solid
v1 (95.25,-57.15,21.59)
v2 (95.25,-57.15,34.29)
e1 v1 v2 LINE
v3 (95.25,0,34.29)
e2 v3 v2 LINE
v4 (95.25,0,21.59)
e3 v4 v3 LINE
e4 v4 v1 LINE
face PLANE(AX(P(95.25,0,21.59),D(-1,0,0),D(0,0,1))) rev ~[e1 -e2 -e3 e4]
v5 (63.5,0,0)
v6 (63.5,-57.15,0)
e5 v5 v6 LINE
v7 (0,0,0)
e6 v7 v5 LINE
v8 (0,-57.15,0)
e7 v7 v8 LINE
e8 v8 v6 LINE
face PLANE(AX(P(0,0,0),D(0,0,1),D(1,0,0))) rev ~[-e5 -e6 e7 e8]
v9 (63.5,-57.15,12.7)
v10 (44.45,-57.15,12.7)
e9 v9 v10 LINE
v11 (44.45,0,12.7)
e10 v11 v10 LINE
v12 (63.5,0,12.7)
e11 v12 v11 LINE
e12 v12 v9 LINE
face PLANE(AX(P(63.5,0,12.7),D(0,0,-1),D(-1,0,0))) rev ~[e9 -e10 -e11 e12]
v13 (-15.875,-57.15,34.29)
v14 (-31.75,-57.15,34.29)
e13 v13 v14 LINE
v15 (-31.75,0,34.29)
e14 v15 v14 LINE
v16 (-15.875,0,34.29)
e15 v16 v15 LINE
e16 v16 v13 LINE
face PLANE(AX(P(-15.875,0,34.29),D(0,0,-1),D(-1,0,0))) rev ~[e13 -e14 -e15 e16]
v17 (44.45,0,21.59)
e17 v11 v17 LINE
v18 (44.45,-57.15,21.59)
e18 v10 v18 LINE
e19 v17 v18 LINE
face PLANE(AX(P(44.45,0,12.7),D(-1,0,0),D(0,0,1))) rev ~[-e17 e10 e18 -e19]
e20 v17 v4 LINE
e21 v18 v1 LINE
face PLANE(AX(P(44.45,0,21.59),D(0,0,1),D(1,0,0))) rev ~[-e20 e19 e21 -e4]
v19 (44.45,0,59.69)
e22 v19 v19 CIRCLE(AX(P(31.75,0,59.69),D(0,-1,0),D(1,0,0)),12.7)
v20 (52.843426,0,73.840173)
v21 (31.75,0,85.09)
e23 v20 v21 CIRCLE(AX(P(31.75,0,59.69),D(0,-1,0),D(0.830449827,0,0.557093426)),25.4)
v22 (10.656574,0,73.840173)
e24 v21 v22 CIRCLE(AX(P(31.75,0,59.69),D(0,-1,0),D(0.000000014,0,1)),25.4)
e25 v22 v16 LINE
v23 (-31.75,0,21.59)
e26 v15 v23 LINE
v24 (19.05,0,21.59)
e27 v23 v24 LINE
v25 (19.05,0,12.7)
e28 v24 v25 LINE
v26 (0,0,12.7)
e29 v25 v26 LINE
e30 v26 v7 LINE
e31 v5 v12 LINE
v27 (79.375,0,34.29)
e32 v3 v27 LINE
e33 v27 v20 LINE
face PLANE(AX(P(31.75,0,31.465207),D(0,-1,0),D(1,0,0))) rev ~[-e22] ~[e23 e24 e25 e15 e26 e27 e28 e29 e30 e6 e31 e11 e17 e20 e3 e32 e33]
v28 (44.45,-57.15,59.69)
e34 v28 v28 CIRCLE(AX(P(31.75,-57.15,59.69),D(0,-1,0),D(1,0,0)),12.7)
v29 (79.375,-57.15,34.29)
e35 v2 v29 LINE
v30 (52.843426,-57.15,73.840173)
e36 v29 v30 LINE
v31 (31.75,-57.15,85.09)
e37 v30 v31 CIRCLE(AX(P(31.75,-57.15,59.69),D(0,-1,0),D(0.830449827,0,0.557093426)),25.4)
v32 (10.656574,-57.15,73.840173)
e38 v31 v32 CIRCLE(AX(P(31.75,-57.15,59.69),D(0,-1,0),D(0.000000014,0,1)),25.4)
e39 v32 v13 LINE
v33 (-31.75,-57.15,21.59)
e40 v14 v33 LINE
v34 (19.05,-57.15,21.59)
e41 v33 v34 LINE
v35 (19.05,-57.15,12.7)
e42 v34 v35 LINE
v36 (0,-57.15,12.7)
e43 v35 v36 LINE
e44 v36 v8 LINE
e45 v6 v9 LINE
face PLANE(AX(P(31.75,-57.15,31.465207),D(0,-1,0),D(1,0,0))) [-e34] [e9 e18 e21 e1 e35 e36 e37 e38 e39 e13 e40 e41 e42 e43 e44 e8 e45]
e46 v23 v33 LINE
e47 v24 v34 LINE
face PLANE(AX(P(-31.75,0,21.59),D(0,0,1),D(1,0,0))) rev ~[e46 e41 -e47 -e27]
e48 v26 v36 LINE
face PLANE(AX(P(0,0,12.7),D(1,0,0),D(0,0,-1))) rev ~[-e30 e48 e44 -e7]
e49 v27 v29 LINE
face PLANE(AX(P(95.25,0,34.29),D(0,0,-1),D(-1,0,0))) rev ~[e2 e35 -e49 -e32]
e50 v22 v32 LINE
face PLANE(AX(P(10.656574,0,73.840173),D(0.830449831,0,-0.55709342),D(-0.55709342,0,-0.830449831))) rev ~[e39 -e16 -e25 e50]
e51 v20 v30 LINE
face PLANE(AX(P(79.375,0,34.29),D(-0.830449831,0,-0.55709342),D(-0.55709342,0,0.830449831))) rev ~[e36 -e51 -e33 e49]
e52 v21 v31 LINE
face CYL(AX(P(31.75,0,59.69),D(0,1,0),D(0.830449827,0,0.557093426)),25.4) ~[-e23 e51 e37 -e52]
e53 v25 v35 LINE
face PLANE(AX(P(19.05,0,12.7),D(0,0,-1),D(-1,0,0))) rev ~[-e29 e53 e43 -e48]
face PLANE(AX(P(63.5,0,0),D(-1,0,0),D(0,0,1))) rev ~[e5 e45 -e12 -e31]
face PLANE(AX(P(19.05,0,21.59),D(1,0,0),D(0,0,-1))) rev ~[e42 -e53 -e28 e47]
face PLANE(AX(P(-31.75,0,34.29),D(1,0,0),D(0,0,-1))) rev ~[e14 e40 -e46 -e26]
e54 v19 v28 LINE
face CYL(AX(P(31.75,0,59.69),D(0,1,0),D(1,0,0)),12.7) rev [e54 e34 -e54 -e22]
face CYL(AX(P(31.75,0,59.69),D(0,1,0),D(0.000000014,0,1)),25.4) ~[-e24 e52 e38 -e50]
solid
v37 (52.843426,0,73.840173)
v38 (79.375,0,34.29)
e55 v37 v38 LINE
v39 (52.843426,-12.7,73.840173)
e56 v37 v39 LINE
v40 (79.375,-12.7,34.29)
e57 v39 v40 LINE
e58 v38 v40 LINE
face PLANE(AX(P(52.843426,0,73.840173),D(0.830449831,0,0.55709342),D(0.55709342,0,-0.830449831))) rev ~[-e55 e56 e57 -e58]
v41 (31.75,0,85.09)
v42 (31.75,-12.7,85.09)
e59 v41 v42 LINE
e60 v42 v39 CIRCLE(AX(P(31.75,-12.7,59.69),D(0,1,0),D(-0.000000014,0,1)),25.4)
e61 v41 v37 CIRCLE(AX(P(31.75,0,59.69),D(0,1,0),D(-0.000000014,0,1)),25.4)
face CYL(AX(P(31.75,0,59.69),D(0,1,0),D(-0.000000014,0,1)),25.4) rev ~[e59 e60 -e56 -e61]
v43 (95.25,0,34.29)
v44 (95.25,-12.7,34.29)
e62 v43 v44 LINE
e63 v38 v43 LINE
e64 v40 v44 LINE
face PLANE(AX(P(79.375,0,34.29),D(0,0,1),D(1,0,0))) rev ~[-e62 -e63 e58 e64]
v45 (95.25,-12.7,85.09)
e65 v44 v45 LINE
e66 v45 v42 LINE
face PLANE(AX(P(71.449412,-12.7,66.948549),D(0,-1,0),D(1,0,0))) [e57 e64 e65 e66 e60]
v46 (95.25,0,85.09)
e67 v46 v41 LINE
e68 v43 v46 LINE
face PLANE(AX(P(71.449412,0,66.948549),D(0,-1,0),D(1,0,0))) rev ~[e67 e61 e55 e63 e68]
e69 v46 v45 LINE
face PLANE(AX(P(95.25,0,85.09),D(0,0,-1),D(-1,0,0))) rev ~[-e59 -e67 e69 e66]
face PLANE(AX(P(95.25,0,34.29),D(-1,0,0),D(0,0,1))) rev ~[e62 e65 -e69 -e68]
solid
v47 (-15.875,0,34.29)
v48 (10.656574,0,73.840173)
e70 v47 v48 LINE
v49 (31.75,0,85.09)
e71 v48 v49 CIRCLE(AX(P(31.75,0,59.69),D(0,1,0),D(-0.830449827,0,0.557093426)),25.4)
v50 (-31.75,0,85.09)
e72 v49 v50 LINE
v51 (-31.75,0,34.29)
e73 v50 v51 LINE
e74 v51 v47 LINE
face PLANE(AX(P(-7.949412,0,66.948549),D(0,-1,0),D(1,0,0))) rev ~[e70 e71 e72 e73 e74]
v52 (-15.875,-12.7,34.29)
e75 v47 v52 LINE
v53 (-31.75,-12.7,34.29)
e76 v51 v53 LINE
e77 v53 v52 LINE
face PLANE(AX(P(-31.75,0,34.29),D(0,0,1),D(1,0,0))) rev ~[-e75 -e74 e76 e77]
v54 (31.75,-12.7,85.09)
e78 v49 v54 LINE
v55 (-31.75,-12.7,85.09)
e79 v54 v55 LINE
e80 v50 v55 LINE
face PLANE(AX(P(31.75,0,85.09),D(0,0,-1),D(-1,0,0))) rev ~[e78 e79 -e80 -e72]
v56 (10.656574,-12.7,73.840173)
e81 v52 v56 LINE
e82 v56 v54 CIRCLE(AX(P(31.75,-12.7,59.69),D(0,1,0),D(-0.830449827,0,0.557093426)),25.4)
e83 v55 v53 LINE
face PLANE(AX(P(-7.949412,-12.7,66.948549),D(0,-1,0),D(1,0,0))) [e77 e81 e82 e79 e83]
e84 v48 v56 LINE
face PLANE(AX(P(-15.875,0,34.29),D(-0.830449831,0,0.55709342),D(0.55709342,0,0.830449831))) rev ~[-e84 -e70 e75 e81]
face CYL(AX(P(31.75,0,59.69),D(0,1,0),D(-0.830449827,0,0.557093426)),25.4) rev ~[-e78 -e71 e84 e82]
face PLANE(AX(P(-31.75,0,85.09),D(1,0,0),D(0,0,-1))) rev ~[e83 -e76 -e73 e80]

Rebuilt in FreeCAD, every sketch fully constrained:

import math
import FreeCAD as App
import Part
import Sketcher
from FreeCAD import Vector
Q = App.Units.Quantity

doc = App.newDocument("Part")
body = doc.addObject("PartDesign::Body", "Body")
body.AllowCompound = True

# Sketch on XZ plane
sketch1 = doc.addObject("Sketcher::SketchObject", "Sketch")
body.addObject(sketch1)
sketch1.AttachmentSupport = (doc.XZ_Plane, [""])
sketch1.MapMode = "FlatFace"
sketch1.addGeometry([
    Part.LineSegment(Vector(-32, 85, 0), Vector(-32, 34, 0)),  # 0
    Part.LineSegment(Vector(-32, 34, 0), Vector(-16, 34, 0)),  # 1
    Part.LineSegment(Vector(-16, 34, 0), Vector(11, 74, 0)),  # 2
    Part.ArcOfCircle(Part.Circle(Vector(32, 60, 0), Vector(0, 0, 1), 25), math.radians(90), math.radians(146)),  # 3
    Part.LineSegment(Vector(32, 85, 0), Vector(-32, 85, 0)),  # 4
    Part.LineSegment(Vector(79, 34, 0), Vector(95, 34, 0)),  # 5
    Part.LineSegment(Vector(95, 34, 0), Vector(95, 85, 0)),  # 6
    Part.LineSegment(Vector(95, 85, 0), Vector(32, 85, 0)),  # 7
    Part.ArcOfCircle(Part.Circle(Vector(32, 60, 0), Vector(0, 0, 1), 25), math.radians(34), math.radians(90)),  # 8
    Part.LineSegment(Vector(53, 74, 0), Vector(79, 34, 0)),  # 9
], False)
sketch1.addConstraint([
    Sketcher.Constraint("Coincident", 0, 2, 1, 1),
    Sketcher.Constraint("Coincident", 1, 2, 2, 1),
    Sketcher.Constraint("Tangent", 2, 2, 3, 2),
    Sketcher.Constraint("Tangent", 3, 1, 4, 1),
    Sketcher.Constraint("Coincident", 4, 2, 0, 1),
    Sketcher.Constraint("Coincident", 5, 2, 6, 1),
    Sketcher.Constraint("Coincident", 6, 2, 7, 1),
    Sketcher.Constraint("Tangent", 7, 2, 8, 2),
    Sketcher.Constraint("Tangent", 8, 1, 9, 1),
    Sketcher.Constraint("Coincident", 9, 2, 5, 1),
    Sketcher.Constraint("Vertical", 0),
    Sketcher.Constraint("Horizontal", 1),
    Sketcher.Constraint("Horizontal", 4),
    Sketcher.Constraint("Horizontal", 5),
    Sketcher.Constraint("Vertical", 6),
    Sketcher.Constraint("Horizontal", 7),
    Sketcher.Constraint("Coincident", 8, 3, 3, 3),
    Sketcher.Constraint("Equal", 3, 8),
    Sketcher.Constraint("Horizontal", 1, 2, 5, 2),
    Sketcher.Constraint("Horizontal", 2, 2, 8, 1),
    Sketcher.Constraint("Equal", 1, 5),
    Sketcher.Constraint("Radius", 3, Q("1 in")),
    Sketcher.Constraint("DistanceY", 0, 2, 0, 1, Q("2 in")),
    Sketcher.Constraint("DistanceX", 4, 2, 4, 1, Q("2.5 in")),
    Sketcher.Constraint("DistanceX", 1, 1, 1, 2, Q("0.625 in")),
    Sketcher.Constraint("DistanceX", -1, 1, 3, 3, Q("1.25 in")),
    Sketcher.Constraint("DistanceY", -1, 1, 3, 3, Q("2.35 in")),
])
pad1 = doc.addObject("PartDesign::Pad", "Pad")
body.addObject(pad1)
pad1.Profile = sketch1
pad1.Length = Q("0.5 in")
body2 = doc.addObject("PartDesign::Body", "Body001")

# Sketch on XZ plane
sketch2 = doc.addObject("Sketcher::SketchObject", "Sketch001")
body2.addObject(sketch2)
sketch2.AttachmentSupport = (doc.getObject("XZ_Plane001"), [""])
sketch2.MapMode = "FlatFace"
sketch2.addGeometry([
    Part.LineSegment(Vector(0, 13, 0), Vector(0, 0, 0)),  # 0
    Part.LineSegment(Vector(0, 0, 0), Vector(64, 0, 0)),  # 1
    Part.LineSegment(Vector(64, 0, 0), Vector(64, 13, 0)),  # 2
    Part.LineSegment(Vector(64, 13, 0), Vector(44, 13, 0)),  # 3
    Part.LineSegment(Vector(44, 13, 0), Vector(44, 22, 0)),  # 4
    Part.LineSegment(Vector(44, 22, 0), Vector(95, 22, 0)),  # 5
    Part.LineSegment(Vector(95, 22, 0), Vector(95, 34, 0)),  # 6
    Part.LineSegment(Vector(95, 34, 0), Vector(79, 34, 0)),  # 7
    Part.LineSegment(Vector(79, 34, 0), Vector(53, 74, 0)),  # 8
    Part.ArcOfCircle(Part.Circle(Vector(32, 60, 0), Vector(0, 0, 1), 25), math.radians(34), math.radians(90)),  # 9
    Part.ArcOfCircle(Part.Circle(Vector(32, 60, 0), Vector(0, 0, 1), 25), math.radians(90), math.radians(146)),  # 10
    Part.LineSegment(Vector(11, 74, 0), Vector(-16, 34, 0)),  # 11
    Part.LineSegment(Vector(-16, 34, 0), Vector(-32, 34, 0)),  # 12
    Part.LineSegment(Vector(-32, 34, 0), Vector(-32, 22, 0)),  # 13
    Part.LineSegment(Vector(-32, 22, 0), Vector(19, 22, 0)),  # 14
    Part.LineSegment(Vector(19, 22, 0), Vector(19, 13, 0)),  # 15
    Part.LineSegment(Vector(19, 13, 0), Vector(0, 13, 0)),  # 16
    Part.Circle(Vector(32, 60, 0), Vector(0, 0, 1), 13),  # 17
], False)
sketch2.addConstraint([
    Sketcher.Constraint("Coincident", 0, 2, 1, 1),
    Sketcher.Constraint("Coincident", 1, 2, 2, 1),
    Sketcher.Constraint("Coincident", 2, 2, 3, 1),
    Sketcher.Constraint("Coincident", 3, 2, 4, 1),
    Sketcher.Constraint("Coincident", 4, 2, 5, 1),
    Sketcher.Constraint("Coincident", 5, 2, 6, 1),
    Sketcher.Constraint("Coincident", 6, 2, 7, 1),
    Sketcher.Constraint("Coincident", 7, 2, 8, 1),
    Sketcher.Constraint("Tangent", 8, 2, 9, 1),
    Sketcher.Constraint("Tangent", 9, 2, 10, 1),
    Sketcher.Constraint("Tangent", 10, 2, 11, 1),
    Sketcher.Constraint("Coincident", 11, 2, 12, 1),
    Sketcher.Constraint("Coincident", 12, 2, 13, 1),
    Sketcher.Constraint("Coincident", 13, 2, 14, 1),
    Sketcher.Constraint("Coincident", 14, 2, 15, 1),
    Sketcher.Constraint("Coincident", 15, 2, 16, 1),
    Sketcher.Constraint("Coincident", 16, 2, 0, 1),
    Sketcher.Constraint("Vertical", 0),
    Sketcher.Constraint("Horizontal", 1),
    Sketcher.Constraint("Vertical", 2),
    Sketcher.Constraint("Horizontal", 3),
    Sketcher.Constraint("Vertical", 4),
    Sketcher.Constraint("Horizontal", 5),
    Sketcher.Constraint("Vertical", 6),
    Sketcher.Constraint("Horizontal", 7),
    Sketcher.Constraint("Horizontal", 12),
    Sketcher.Constraint("Vertical", 13),
    Sketcher.Constraint("Horizontal", 14),
    Sketcher.Constraint("Vertical", 15),
    Sketcher.Constraint("Horizontal", 16),
    Sketcher.Constraint("Coincident", 0, 2, -1, 1),
    Sketcher.Constraint("Coincident", 17, 3, 9, 3),
    Sketcher.Constraint("Equal", 9, 10),
    Sketcher.Constraint("Horizontal", 8, 2, 10, 2),
    Sketcher.Constraint("Horizontal", 7, 2, 11, 2),
    Sketcher.Constraint("Horizontal", 5, 2, 13, 2),
    Sketcher.Constraint("Horizontal", 3, 2, 15, 2),
    Sketcher.Constraint("Vertical", 17, 3, 9, 2),
    Sketcher.Constraint("Equal", 7, 12),
    Sketcher.Constraint("Equal", 5, 14),
    Sketcher.Constraint("Equal", 3, 16),
    Sketcher.Constraint("Equal", 2, 6),
    Sketcher.Constraint("Diameter", 17, Q("1 in")),
    Sketcher.Constraint("Radius", 9, Q("1 in")),
    Sketcher.Constraint("DistanceX", 5, 1, 5, 2, Q("2 in")),
    Sketcher.Constraint("DistanceX", 1, 1, 1, 2, Q("2.5 in")),
    Sketcher.Constraint("DistanceY", 0, 2, 0, 1, Q("0.5 in")),
    Sketcher.Constraint("DistanceY", 11, 2, 10, 3, Q("1 in")),
    Sketcher.Constraint("DistanceX", 14, 2, 4, 2, Q("1 in")),
    Sketcher.Constraint("DistanceY", 4, 1, 4, 2, Q("0.35 in")),
    Sketcher.Constraint("DistanceX", 7, 2, 7, 1, Q("0.625 in")),
])
pad2 = doc.addObject("PartDesign::Pad", "Pad001")
body2.addObject(pad2)
pad2.Profile = sketch2
pad2.Length = Q("2.25 in")

doc.recompute()
